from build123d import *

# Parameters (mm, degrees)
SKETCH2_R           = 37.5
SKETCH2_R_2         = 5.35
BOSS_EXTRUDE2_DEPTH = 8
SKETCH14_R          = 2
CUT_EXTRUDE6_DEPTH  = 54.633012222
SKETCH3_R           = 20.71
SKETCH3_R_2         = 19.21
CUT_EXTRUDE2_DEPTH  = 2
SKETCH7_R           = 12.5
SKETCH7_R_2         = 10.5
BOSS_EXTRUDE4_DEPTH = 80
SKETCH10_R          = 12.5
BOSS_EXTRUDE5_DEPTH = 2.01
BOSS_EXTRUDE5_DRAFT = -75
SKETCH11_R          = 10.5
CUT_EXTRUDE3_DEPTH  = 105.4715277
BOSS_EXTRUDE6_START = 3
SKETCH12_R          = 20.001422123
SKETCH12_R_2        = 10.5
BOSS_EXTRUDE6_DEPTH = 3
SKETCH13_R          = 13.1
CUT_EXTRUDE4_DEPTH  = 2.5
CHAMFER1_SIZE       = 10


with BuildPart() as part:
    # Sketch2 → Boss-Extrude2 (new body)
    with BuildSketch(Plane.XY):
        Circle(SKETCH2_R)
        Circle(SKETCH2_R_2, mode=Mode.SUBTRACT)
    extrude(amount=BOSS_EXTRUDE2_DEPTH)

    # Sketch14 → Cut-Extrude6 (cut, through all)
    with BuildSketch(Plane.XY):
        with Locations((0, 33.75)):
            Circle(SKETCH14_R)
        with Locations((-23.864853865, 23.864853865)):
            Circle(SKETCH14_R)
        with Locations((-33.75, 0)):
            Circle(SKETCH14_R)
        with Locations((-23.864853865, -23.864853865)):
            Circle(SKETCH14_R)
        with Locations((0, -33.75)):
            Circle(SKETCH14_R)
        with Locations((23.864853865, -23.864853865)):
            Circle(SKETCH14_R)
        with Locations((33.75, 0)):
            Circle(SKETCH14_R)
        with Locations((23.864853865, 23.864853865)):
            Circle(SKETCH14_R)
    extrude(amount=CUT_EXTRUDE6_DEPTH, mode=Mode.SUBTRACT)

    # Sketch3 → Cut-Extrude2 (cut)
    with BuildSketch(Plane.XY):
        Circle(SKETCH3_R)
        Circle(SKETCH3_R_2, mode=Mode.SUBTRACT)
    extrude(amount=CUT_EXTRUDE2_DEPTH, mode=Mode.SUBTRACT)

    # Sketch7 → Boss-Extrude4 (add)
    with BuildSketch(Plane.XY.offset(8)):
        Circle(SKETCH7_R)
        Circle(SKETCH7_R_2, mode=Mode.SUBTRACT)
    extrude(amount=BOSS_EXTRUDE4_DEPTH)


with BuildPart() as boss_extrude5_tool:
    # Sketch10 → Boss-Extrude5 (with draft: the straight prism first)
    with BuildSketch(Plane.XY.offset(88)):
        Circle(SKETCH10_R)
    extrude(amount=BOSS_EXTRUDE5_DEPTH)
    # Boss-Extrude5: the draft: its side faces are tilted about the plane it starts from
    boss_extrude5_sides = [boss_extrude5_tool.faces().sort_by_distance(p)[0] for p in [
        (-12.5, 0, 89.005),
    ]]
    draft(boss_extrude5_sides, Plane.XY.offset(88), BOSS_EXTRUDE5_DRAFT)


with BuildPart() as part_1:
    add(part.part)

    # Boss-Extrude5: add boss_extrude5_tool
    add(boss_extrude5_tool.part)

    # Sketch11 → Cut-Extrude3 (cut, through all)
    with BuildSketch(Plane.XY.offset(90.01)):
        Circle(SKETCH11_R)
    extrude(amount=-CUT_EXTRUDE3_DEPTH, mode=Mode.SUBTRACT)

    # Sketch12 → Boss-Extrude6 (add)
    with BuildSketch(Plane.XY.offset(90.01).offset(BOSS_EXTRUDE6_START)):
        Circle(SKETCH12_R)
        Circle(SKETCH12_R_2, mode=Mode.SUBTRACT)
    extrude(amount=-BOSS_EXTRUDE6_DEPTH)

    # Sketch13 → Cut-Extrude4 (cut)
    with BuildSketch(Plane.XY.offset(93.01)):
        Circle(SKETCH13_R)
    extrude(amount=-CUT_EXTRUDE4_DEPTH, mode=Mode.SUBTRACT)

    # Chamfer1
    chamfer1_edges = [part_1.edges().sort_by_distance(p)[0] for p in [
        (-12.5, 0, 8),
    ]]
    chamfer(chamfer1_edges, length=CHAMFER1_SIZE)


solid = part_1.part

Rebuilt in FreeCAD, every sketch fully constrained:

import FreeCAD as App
import Part
import Sketcher
from FreeCAD import Vector


def edges_at(feature, points):
    """Names of the edges that pass closest to the given points."""
    edges = feature.Shape.Edges
    near = lambda p: min(range(len(edges)), key=lambda i: edges[i].distToShape(Part.Vertex(*p))[0])
    return sorted({f"Edge{near(p) + 1}" for p in points})


def faces_at(feature, points):
    """Names of the faces that lie closest to the given points."""
    faces = feature.Shape.Faces
    near = lambda p: min(range(len(faces)), key=lambda i: faces[i].distToShape(Part.Vertex(*p))[0])
    return sorted({f"Face{near(p) + 1}" for p in points})

doc = App.newDocument("Part")
body = doc.addObject("PartDesign::Body", "Body")

sketch1 = doc.addObject("Sketcher::SketchObject", "Sketch")
body.addObject(sketch1)
sketch1.AttachmentSupport = (doc.XY_Plane, [""])
sketch1.MapMode = "FlatFace"
sketch1.addGeometry([
    Part.Circle(Vector(0, 0, 0), Vector(0, 0, 1), 38),
    Part.Circle(Vector(0, 0, 0), Vector(0, 0, 1), 5),
], False)
sketch1.addConstraint([
    Sketcher.Constraint("Coincident", 0, 3, -1, 1),
    Sketcher.Constraint("Coincident", 1, 3, -1, 1),
    Sketcher.Constraint("Diameter", 0, 75.0),
    Sketcher.Constraint("Diameter", 1, 10.7),
])
pad1 = doc.addObject("PartDesign::Pad", "Pad")
body.addObject(pad1)
pad1.Profile = sketch1
pad1.Length = 8

sketch2 = doc.addObject("Sketcher::SketchObject", "Sketch001")
body.addObject(sketch2)
sketch2.AttachmentSupport = (doc.XY_Plane, [""])
sketch2.MapMode = "FlatFace"
sketch2.addGeometry([
    Part.Circle(Vector(0, 33.8, 0), Vector(0, 0, 1), 2),
    Part.Circle(Vector(-23.9, 23.9, 0), Vector(0, 0, 1), 2),
    Part.Circle(Vector(-33.8, 0, 0), Vector(0, 0, 1), 2),
    Part.Circle(Vector(-23.9, -23.9, 0), Vector(0, 0, 1), 2),
    Part.Circle(Vector(0, -33.8, 0), Vector(0, 0, 1), 2),
    Part.Circle(Vector(23.9, -23.9, 0), Vector(0, 0, 1), 2),
    Part.Circle(Vector(33.8, 0, 0), Vector(0, 0, 1), 2),
    Part.Circle(Vector(23.9, 23.9, 0), Vector(0, 0, 1), 2),
], False)
sketch2.addConstraint([
    Sketcher.Constraint("Equal", 0, 1),
    Sketcher.Constraint("Equal", 1, 2),
    Sketcher.Constraint("Equal", 2, 3),
    Sketcher.Constraint("Equal", 3, 4),
    Sketcher.Constraint("Equal", 4, 5),
    Sketcher.Constraint("Equal", 5, 6),
    Sketcher.Constraint("Equal", 6, 7),
    Sketcher.Constraint("Symmetric", 0, 3, 4, 3, -1, 1),
    Sketcher.Constraint("Symmetric", 1, 3, 5, 3, -1, 1),
    Sketcher.Constraint("Symmetric", 2, 3, 6, 3, -1, 1),
    Sketcher.Constraint("Symmetric", 3, 3, 7, 3, -1, 1),
    Sketcher.Constraint("Symmetric", 3, 3, 5, 3, -2),
    Sketcher.Constraint("PointOnObject", 0, 3, -2),
    Sketcher.Constraint("PointOnObject", 2, 3, -1),
    Sketcher.Constraint("Diameter", 0, 4.0),
    Sketcher.Constraint("DistanceY", 4, 3, 0, 3, 67.5),
    Sketcher.Constraint("DistanceX", 2, 3, -1, 1, 33.75),
    Sketcher.Constraint("DistanceX", 1, 3, -1, 1, 23.864854),
    Sketcher.Constraint("DistanceY", -1, 1, 1, 3, 23.864854),
])
pocket1 = doc.addObject("PartDesign::Pocket", "Pocket")
body.addObject(pocket1)
pocket1.Profile = sketch2
pocket1.Type = "ThroughAll"
pocket1.Reversed = True

sketch3 = doc.addObject("Sketcher::SketchObject", "Sketch002")
body.addObject(sketch3)
sketch3.AttachmentSupport = (doc.XY_Plane, [""])
sketch3.MapMode = "FlatFace"
sketch3.addGeometry([
    Part.Circle(Vector(0, 0, 0), Vector(0, 0, 1), 21),
    Part.Circle(Vector(0, 0, 0), Vector(0, 0, 1), 19),
], False)
sketch3.addConstraint([
    Sketcher.Constraint("Coincident", 0, 3, -1, 1),
    Sketcher.Constraint("Coincident", 1, 3, -1, 1),
    Sketcher.Constraint("Diameter", 0, 41.42),
    Sketcher.Constraint("Diameter", 1, 38.42),
])
pocket2 = doc.addObject("PartDesign::Pocket", "Pocket001")
body.addObject(pocket2)
pocket2.Profile = sketch3
pocket2.Length = 2
pocket2.Reversed = True

sketch4 = doc.addObject("Sketcher::SketchObject", "Sketch003")
body.addObject(sketch4)
sketch4.AttachmentSupport = (doc.XY_Plane, [""])
sketch4.MapMode = "FlatFace"
sketch4.AttachmentOffset = App.Placement(Vector(0, 0, 8), App.Rotation())
sketch4.addGeometry([
    Part.Circle(Vector(0, 0, 0), Vector(0, 0, 1), 12),
    Part.Circle(Vector(0, 0, 0), Vector(0, 0, 1), 10),
], False)
sketch4.addConstraint([
    Sketcher.Constraint("Coincident", 0, 3, -1, 1),
    Sketcher.Constraint("Coincident", 1, 3, -1, 1),
    Sketcher.Constraint("Diameter", 0, 25.0),
    Sketcher.Constraint("Diameter", 1, 21.0),
])
pad2 = doc.addObject("PartDesign::Pad", "Pad001")
body.addObject(pad2)
pad2.Profile = sketch4
pad2.Length = 80
body2 = doc.addObject("PartDesign::Body", "Body001")

sketch5 = doc.addObject("Sketcher::SketchObject", "Sketch004")
body2.addObject(sketch5)
sketch5.AttachmentSupport = (doc.getObject("XY_Plane001"), [""])
sketch5.MapMode = "FlatFace"
sketch5.AttachmentOffset = App.Placement(Vector(0, 0, 88), App.Rotation())
sketch5.addGeometry(Part.Circle(Vector(0, 0, 0), Vector(0, 0, 1), 12), False)
sketch5.addConstraint([
    Sketcher.Constraint("Coincident", 0, 3, -1, 1),
    Sketcher.Constraint("Diameter", 0, 25.0),
])
pad3 = doc.addObject("PartDesign::Pad", "Pad002")
body2.addObject(pad3)
pad3.Profile = sketch5
pad3.Length = 2.01
doc.recompute()

datumplane = doc.addObject("PartDesign::Plane", "DatumPlane")
body2.addObject(datumplane)
datumplane.AttachmentSupport = (doc.getObject("XY_Plane001"), [""])
datumplane.MapMode = "FlatFace"
datumplane.AttachmentOffset = App.Placement(Vector(0, 0, 88), App.Rotation())
draft = doc.addObject("PartDesign::Draft", "Draft")
body2.addObject(draft)
draft.Base = (pad3, faces_at(pad3, [(-12.5, 0, 89.005)]))
draft.NeutralPlane = (datumplane, [""])
draft.Angle = 75
draft.Reversed = True
doc.recompute()

boolean = doc.addObject("PartDesign::Boolean", "Boolean")
body.addObject(boolean)
boolean.Type = "Fuse"
boolean.addObjects([body2])

sketch6 = doc.addObject("Sketcher::SketchObject", "Sketch005")
body.addObject(sketch6)
sketch6.AttachmentSupport = (doc.XY_Plane, [""])
sketch6.MapMode = "FlatFace"
sketch6.AttachmentOffset = App.Placement(Vector(0, 0, 90.01), App.Rotation())
sketch6.addGeometry(Part.Circle(Vector(0, 0, 0), Vector(0, 0, 1), 10), False)
sketch6.addConstraint([
    Sketcher.Constraint("Coincident", 0, 3, -1, 1),
    Sketcher.Constraint("Diameter", 0, 21.0),
])
pocket3 = doc.addObject("PartDesign::Pocket", "Pocket002")
body.addObject(pocket3)
pocket3.Profile = sketch6
pocket3.Type = "ThroughAll"

sketch7 = doc.addObject("Sketcher::SketchObject", "Sketch006")
body.addObject(sketch7)
sketch7.AttachmentSupport = (doc.XY_Plane, [""])
sketch7.MapMode = "FlatFace"
sketch7.AttachmentOffset = App.Placement(Vector(0, 0, 93.01), App.Rotation())
sketch7.addGeometry([
    Part.Circle(Vector(0, 0, 0), Vector(0, 0, 1), 20),
    Part.Circle(Vector(0, 0, 0), Vector(0, 0, 1), 10),
], False)
sketch7.addConstraint([
    Sketcher.Constraint("Coincident", 0, 3, -1, 1),
    Sketcher.Constraint("Coincident", 1, 3, -1, 1),
    Sketcher.Constraint("Diameter", 1, 21.0),
    Sketcher.Constraint("Diameter", 0, 40.002844),
])
pad4 = doc.addObject("PartDesign::Pad", "Pad003")
body.addObject(pad4)
pad4.Profile = sketch7
pad4.Length = 3
pad4.Reversed = True

sketch8 = doc.addObject("Sketcher::SketchObject", "Sketch007")
body.addObject(sketch8)
sketch8.AttachmentSupport = (doc.XY_Plane, [""])
sketch8.MapMode = "FlatFace"
sketch8.AttachmentOffset = App.Placement(Vector(0, 0, 93.01), App.Rotation())
sketch8.addGeometry(Part.Circle(Vector(0, 0, 0), Vector(0, 0, 1), 13), False)
sketch8.addConstraint([
    Sketcher.Constraint("Coincident", 0, 3, -1, 1),
    Sketcher.Constraint("Diameter", 0, 26.2),
])
pocket4 = doc.addObject("PartDesign::Pocket", "Pocket003")
body.addObject(pocket4)
pocket4.Profile = sketch8
pocket4.Length = 2.5
doc.recompute()

chamfer = doc.addObject("PartDesign::Chamfer", "Chamfer")
body.addObject(chamfer)
chamfer.Base = (pocket4, edges_at(pocket4, [(-12.5, 0, 8)]))
chamfer.Size = 10

doc.recompute()
